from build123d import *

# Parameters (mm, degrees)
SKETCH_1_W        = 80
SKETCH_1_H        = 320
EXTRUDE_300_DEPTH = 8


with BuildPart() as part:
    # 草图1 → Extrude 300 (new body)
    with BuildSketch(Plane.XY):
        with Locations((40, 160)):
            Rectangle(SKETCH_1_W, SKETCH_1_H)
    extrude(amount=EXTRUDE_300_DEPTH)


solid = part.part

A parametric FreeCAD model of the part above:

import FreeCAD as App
import Part
import Sketcher
Q = App.Units.Quantity


def add_polygon(sketch, points):
    """Adds a closed chain of lines whose ends are joined by coincident constraints."""
    first, n = sketch.GeometryCount, len(points)
    for a, b in zip(points, points[1:] + points[:1]):
        sketch.addGeometry(Part.LineSegment(App.Vector(*a, 0), App.Vector(*b, 0)), False)
    for i in range(n):
        sketch.addConstraint(Sketcher.Constraint("Coincident", first + i, 2, first + (i + 1) % n, 1))

doc = App.newDocument("Part")
body = doc.addObject("PartDesign::Body", "Body")

sketch1 = doc.addObject("Sketcher::SketchObject", "Sketch")
body.addObject(sketch1)
sketch1.AttachmentSupport = (doc.XY_Plane, [""])
sketch1.MapMode = "FlatFace"
add_polygon(sketch1, [(0, 320), (0, 0), (80, 0), (80, 320)])
sketch1.addConstraint([
    Sketcher.Constraint("Vertical", 0),
    Sketcher.Constraint("Horizontal", 1),
    Sketcher.Constraint("Vertical", 2),
    Sketcher.Constraint("Horizontal", 3),
    Sketcher.Constraint("Coincident", 0, 2, -1, 1),
    Sketcher.Constraint("DistanceX", 1, 1, 1, 2, Q("80 mm")),
    Sketcher.Constraint("DistanceY", 0, 2, 0, 1, Q("320 mm")),
])
pad1 = doc.addObject("PartDesign::Pad", "Pad")
body.addObject(pad1)
pad1.Profile = sketch1
pad1.Length = 8

doc.recompute()
